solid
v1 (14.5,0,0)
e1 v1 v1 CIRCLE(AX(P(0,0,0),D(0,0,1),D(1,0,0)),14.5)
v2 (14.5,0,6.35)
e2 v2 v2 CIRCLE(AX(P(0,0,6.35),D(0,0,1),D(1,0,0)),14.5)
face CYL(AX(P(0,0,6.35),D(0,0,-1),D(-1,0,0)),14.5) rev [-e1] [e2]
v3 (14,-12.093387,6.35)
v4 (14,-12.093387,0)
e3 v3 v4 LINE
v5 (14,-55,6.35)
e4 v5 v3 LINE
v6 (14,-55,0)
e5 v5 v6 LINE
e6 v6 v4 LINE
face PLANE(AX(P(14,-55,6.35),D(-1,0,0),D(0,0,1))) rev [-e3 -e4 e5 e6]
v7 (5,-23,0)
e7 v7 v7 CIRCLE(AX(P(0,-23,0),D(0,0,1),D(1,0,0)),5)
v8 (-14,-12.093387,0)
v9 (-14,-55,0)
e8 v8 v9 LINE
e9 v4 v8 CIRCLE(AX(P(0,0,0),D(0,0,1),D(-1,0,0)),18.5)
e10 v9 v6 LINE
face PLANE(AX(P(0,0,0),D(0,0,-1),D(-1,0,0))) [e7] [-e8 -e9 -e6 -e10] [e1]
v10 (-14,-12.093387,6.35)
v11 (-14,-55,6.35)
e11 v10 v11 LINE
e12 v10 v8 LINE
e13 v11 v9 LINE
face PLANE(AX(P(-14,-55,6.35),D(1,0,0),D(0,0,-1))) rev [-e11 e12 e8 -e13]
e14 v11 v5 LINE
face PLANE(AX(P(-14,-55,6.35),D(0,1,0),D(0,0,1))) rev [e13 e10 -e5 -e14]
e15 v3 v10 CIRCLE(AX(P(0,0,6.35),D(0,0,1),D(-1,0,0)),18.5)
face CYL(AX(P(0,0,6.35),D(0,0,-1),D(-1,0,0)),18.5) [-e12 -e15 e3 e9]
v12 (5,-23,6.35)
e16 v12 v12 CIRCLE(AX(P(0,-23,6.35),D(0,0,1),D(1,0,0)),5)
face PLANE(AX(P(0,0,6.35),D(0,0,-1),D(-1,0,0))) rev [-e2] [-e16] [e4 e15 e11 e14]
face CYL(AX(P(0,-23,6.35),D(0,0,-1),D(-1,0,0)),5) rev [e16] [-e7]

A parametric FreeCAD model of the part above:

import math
import FreeCAD as App
import Part
import Sketcher
from FreeCAD import Vector
Q = App.Units.Quantity

doc = App.newDocument("Part")
body = doc.addObject("PartDesign::Body", "Body")

# Sketch on XY plane
sketch1 = body.newObject("Sketcher::SketchObject", "Sketch")
sketch1.AttachmentSupport = (doc.getObject("XY_Plane"), [""])
sketch1.MapMode = "FlatFace"
sketch1.addGeometry([
    Part.LineSegment(Vector(-14, -55, 0), Vector(14, -55, 0)),  # 0
    Part.LineSegment(Vector(14, -55, 0), Vector(14, -12, 0)),  # 1
    Part.ArcOfCircle(Part.Circle(Vector(0, 0, 0), Vector(0, 0, 1), 18), math.radians(-41), math.radians(221)),  # 2
    Part.LineSegment(Vector(-14, -12, 0), Vector(-14, -55, 0)),  # 3
    Part.Circle(Vector(0, -23, 0), Vector(0, 0, 1), 5),  # 4
    Part.Circle(Vector(0, 0, 0), Vector(0, 0, 1), 14),  # 5
], False)
sketch1.addConstraint([
    Sketcher.Constraint("Coincident", 0, 2, 1, 1),
    Sketcher.Constraint("Coincident", 1, 2, 2, 1),
    Sketcher.Constraint("Coincident", 2, 2, 3, 1),
    Sketcher.Constraint("Coincident", 3, 2, 0, 1),
    Sketcher.Constraint("Horizontal", 0),
    Sketcher.Constraint("Vertical", 1),
    Sketcher.Constraint("Vertical", 3),
    Sketcher.Constraint("Coincident", 2, 3, -1, 1),
    Sketcher.Constraint("Coincident", 5, 3, -1, 1),
    Sketcher.Constraint("PointOnObject", 4, 3, -2),
    Sketcher.Constraint("Horizontal", 1, 2, 2, 2),
    Sketcher.Constraint("Diameter", 4, Q("10 mm")),
    Sketcher.Constraint("Diameter", 5, Q("29 mm")),
    Sketcher.Constraint("Radius", 2, Q("18.5 mm")),
    Sketcher.Constraint("DistanceX", 0, 1, 0, 2, Q("28 mm")),
    Sketcher.Constraint("DistanceY", 4, 3, -1, 1, Q("23 mm")),
    Sketcher.Constraint("DistanceY", 0, 2, -1, 1, Q("55 mm")),
])
pad1 = body.newObject("PartDesign::Pad", "Pad")
pad1.Profile = sketch1
pad1.Length = 6.35

doc.recompute()
